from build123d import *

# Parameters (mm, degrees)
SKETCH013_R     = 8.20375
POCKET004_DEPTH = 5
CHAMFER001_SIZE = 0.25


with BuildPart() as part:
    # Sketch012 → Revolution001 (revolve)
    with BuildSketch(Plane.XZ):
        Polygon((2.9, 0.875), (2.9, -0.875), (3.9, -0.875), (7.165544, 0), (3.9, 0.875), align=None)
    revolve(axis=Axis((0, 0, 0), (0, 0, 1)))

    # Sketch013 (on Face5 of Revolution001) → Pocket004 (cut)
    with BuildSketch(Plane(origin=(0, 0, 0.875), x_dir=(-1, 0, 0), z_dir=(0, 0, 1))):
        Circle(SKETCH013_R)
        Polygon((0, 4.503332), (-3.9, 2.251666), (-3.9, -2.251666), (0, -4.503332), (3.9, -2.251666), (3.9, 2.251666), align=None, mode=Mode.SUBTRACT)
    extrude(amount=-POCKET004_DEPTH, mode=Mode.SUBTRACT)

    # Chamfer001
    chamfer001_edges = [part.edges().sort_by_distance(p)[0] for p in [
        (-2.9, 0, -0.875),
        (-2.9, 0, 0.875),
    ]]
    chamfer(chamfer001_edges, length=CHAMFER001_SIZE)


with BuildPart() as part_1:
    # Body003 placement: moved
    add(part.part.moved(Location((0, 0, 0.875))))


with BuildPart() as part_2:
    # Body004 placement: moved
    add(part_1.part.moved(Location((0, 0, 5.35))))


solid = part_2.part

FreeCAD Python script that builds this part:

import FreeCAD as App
import Part
import Sketcher
Q = App.Units.Quantity


def edges_at(feature, points):
    """Names of the edges that pass closest to the given points."""
    edges = feature.Shape.Edges
    near = lambda p: min(range(len(edges)), key=lambda i: edges[i].distToShape(Part.Vertex(*p))[0])
    return sorted({f"Edge{near(p) + 1}" for p in points})

doc = App.newDocument("Part")
params = doc.addObject("Spreadsheet::Sheet", "Params")
for row, (alias, value) in enumerate([
    ("sketch1_width", "1 mm"),
    ("sketch1_height", "1.75 mm"),
    ("revolution_angle", "360 deg"),
    ("pocket1_length", "5 mm"),
    ("chamfer_size", "0.25 mm"),
], start=1):
    params.set(f"A{row}", alias)
    params.set(f"B{row}", "=" + value)
    params.setAlias(f"B{row}", alias)

body = doc.addObject("PartDesign::Body", "Body")

# Sketch on XZ plane
sketch1 = body.newObject("Sketcher::SketchObject", "Sketch")
sketch1.AttachmentSupport = (doc.getObject("XZ_Plane"), [""])
sketch1.MapMode = "FlatFace"
sketch1.addGeometry([
    Part.LineSegment(App.Vector(2.9, 0.9, 0), App.Vector(2.9, -0.9, 0)),  # 0
    Part.LineSegment(App.Vector(2.9, -0.9, 0), App.Vector(3.9, -0.9, 0)),  # 1
    Part.LineSegment(App.Vector(3.9, -0.9, 0), App.Vector(7.2, 0, 0)),  # 2
    Part.LineSegment(App.Vector(7.2, 0, 0), App.Vector(3.9, 0.9, 0)),  # 3
    Part.LineSegment(App.Vector(3.9, 0.9, 0), App.Vector(2.9, 0.9, 0)),  # 4
], False)
sketch1.addConstraint([
    Sketcher.Constraint("Coincident", 0, 2, 1, 1),
    Sketcher.Constraint("Coincident", 1, 2, 2, 1),
    Sketcher.Constraint("Coincident", 2, 2, 3, 1),
    Sketcher.Constraint("Coincident", 3, 2, 4, 1),
    Sketcher.Constraint("Coincident", 4, 2, 0, 1),
    Sketcher.Constraint("Vertical", 0),
    Sketcher.Constraint("Horizontal", 1),
    Sketcher.Constraint("Horizontal", 4),
    Sketcher.Constraint("Symmetric", 1, 2, 3, 2, -1),
    Sketcher.Constraint("PointOnObject", 2, 2, -1),
    Sketcher.Constraint("DistanceX", 1, 1, 1, 2, 1.0),
    Sketcher.Constraint("Angle", 2, Q("15.000002 deg")),
    Sketcher.Constraint("DistanceY", 0, 2, 0, 1, 1.75),
    Sketcher.Constraint("DistanceX", -1, 1, 0, 2, 2.9),
])
sketch1.setExpression("Constraints[10]", "Params.sketch1_width")
sketch1.setExpression("Constraints[12]", "Params.sketch1_height")
revolution = body.newObject("PartDesign::Revolution", "Revolution")
revolution.Profile = sketch1
revolution.ReferenceAxis = (sketch1, ["V_Axis"])
revolution.setExpression("Angle", "Params.revolution_angle")

# Sketch on XY plane
sketch2 = body.newObject("Sketcher::SketchObject", "Sketch001")
sketch2.AttachmentSupport = (doc.getObject("XY_Plane"), [""])
sketch2.MapMode = "FlatFace"
sketch2.AttachmentOffset = App.Placement(App.Vector(0, 0, 0.875), App.Rotation())
sketch2.addGeometry([
    Part.Circle(App.Vector(0, 0, 0), App.Vector(0, 0, 1), 8.2),  # 0
    Part.LineSegment(App.Vector(3.9, -2.3, 0), App.Vector(0, -4.5, 0)),  # 1
    Part.LineSegment(App.Vector(0, -4.5, 0), App.Vector(-3.9, -2.3, 0)),  # 2
    Part.LineSegment(App.Vector(-3.9, -2.3, 0), App.Vector(-3.9, 2.3, 0)),  # 3
    Part.LineSegment(App.Vector(-3.9, 2.3, 0), App.Vector(0, 4.5, 0)),  # 4
    Part.LineSegment(App.Vector(0, 4.5, 0), App.Vector(3.9, 2.3, 0)),  # 5
    Part.LineSegment(App.Vector(3.9, 2.3, 0), App.Vector(3.9, -2.3, 0)),  # 6
], False)
sketch2.addConstraint([
    Sketcher.Constraint("Coincident", 1, 2, 2, 1),
    Sketcher.Constraint("Coincident", 2, 2, 3, 1),
    Sketcher.Constraint("Coincident", 3, 2, 4, 1),
    Sketcher.Constraint("Coincident", 4, 2, 5, 1),
    Sketcher.Constraint("Coincident", 5, 2, 6, 1),
    Sketcher.Constraint("Coincident", 6, 2, 1, 1),
    Sketcher.Constraint("Vertical", 3),
    Sketcher.Constraint("Vertical", 6),
    Sketcher.Constraint("Coincident", 0, 3, -1, 1),
    Sketcher.Constraint("Symmetric", 1, 2, 4, 2, -1, 1),
    Sketcher.Constraint("Symmetric", 2, 2, 5, 2, -1, 1),
    Sketcher.Constraint("PointOnObject", 1, 2, -2),
    Sketcher.Constraint("Parallel", 1, 4),
    Sketcher.Constraint("Horizontal", 3, 2, 5, 2),
    Sketcher.Constraint("Angle", 1, Q("-150.000001 deg")),
    Sketcher.Constraint("Diameter", 0, 16.4075),
    Sketcher.Constraint("DistanceX", 2, 2, -1, 1, 3.9),
    Sketcher.Constraint("DistanceY", 1, 2, 3, 2, 6.754998),
])
pocket1 = body.newObject("PartDesign::Pocket", "Pocket")
pocket1.Profile = sketch2
pocket1.setExpression("Length", "Params.pocket1_length")
doc.recompute()

chamfer = body.newObject("PartDesign::Chamfer", "Chamfer")
chamfer.Base = (pocket1, edges_at(pocket1, [(-2.9, 0, -0.875), (-2.9, 0, 0.875)]))
chamfer.setExpression("Size", "Params.chamfer_size")
body2 = doc.addObject("PartDesign::Body", "Body001")
doc.recompute()

body.Placement = App.Placement(App.Vector(0, 0, 0.875), App.Rotation(App.Vector(0, 0, 1), 0))
boolean = body2.newObject("PartDesign::Boolean", "Boolean")
boolean.Type = "Fuse"
boolean.addObjects([body])
body3 = doc.addObject("PartDesign::Body", "Body002")
doc.recompute()

body2.Placement = App.Placement(App.Vector(0, 0, 5.35), App.Rotation(App.Vector(0, 0, 1), 0))
boolean2 = body3.newObject("PartDesign::Boolean", "Boolean001")
boolean2.Type = "Fuse"
boolean2.addObjects([body2])

doc.recompute()
